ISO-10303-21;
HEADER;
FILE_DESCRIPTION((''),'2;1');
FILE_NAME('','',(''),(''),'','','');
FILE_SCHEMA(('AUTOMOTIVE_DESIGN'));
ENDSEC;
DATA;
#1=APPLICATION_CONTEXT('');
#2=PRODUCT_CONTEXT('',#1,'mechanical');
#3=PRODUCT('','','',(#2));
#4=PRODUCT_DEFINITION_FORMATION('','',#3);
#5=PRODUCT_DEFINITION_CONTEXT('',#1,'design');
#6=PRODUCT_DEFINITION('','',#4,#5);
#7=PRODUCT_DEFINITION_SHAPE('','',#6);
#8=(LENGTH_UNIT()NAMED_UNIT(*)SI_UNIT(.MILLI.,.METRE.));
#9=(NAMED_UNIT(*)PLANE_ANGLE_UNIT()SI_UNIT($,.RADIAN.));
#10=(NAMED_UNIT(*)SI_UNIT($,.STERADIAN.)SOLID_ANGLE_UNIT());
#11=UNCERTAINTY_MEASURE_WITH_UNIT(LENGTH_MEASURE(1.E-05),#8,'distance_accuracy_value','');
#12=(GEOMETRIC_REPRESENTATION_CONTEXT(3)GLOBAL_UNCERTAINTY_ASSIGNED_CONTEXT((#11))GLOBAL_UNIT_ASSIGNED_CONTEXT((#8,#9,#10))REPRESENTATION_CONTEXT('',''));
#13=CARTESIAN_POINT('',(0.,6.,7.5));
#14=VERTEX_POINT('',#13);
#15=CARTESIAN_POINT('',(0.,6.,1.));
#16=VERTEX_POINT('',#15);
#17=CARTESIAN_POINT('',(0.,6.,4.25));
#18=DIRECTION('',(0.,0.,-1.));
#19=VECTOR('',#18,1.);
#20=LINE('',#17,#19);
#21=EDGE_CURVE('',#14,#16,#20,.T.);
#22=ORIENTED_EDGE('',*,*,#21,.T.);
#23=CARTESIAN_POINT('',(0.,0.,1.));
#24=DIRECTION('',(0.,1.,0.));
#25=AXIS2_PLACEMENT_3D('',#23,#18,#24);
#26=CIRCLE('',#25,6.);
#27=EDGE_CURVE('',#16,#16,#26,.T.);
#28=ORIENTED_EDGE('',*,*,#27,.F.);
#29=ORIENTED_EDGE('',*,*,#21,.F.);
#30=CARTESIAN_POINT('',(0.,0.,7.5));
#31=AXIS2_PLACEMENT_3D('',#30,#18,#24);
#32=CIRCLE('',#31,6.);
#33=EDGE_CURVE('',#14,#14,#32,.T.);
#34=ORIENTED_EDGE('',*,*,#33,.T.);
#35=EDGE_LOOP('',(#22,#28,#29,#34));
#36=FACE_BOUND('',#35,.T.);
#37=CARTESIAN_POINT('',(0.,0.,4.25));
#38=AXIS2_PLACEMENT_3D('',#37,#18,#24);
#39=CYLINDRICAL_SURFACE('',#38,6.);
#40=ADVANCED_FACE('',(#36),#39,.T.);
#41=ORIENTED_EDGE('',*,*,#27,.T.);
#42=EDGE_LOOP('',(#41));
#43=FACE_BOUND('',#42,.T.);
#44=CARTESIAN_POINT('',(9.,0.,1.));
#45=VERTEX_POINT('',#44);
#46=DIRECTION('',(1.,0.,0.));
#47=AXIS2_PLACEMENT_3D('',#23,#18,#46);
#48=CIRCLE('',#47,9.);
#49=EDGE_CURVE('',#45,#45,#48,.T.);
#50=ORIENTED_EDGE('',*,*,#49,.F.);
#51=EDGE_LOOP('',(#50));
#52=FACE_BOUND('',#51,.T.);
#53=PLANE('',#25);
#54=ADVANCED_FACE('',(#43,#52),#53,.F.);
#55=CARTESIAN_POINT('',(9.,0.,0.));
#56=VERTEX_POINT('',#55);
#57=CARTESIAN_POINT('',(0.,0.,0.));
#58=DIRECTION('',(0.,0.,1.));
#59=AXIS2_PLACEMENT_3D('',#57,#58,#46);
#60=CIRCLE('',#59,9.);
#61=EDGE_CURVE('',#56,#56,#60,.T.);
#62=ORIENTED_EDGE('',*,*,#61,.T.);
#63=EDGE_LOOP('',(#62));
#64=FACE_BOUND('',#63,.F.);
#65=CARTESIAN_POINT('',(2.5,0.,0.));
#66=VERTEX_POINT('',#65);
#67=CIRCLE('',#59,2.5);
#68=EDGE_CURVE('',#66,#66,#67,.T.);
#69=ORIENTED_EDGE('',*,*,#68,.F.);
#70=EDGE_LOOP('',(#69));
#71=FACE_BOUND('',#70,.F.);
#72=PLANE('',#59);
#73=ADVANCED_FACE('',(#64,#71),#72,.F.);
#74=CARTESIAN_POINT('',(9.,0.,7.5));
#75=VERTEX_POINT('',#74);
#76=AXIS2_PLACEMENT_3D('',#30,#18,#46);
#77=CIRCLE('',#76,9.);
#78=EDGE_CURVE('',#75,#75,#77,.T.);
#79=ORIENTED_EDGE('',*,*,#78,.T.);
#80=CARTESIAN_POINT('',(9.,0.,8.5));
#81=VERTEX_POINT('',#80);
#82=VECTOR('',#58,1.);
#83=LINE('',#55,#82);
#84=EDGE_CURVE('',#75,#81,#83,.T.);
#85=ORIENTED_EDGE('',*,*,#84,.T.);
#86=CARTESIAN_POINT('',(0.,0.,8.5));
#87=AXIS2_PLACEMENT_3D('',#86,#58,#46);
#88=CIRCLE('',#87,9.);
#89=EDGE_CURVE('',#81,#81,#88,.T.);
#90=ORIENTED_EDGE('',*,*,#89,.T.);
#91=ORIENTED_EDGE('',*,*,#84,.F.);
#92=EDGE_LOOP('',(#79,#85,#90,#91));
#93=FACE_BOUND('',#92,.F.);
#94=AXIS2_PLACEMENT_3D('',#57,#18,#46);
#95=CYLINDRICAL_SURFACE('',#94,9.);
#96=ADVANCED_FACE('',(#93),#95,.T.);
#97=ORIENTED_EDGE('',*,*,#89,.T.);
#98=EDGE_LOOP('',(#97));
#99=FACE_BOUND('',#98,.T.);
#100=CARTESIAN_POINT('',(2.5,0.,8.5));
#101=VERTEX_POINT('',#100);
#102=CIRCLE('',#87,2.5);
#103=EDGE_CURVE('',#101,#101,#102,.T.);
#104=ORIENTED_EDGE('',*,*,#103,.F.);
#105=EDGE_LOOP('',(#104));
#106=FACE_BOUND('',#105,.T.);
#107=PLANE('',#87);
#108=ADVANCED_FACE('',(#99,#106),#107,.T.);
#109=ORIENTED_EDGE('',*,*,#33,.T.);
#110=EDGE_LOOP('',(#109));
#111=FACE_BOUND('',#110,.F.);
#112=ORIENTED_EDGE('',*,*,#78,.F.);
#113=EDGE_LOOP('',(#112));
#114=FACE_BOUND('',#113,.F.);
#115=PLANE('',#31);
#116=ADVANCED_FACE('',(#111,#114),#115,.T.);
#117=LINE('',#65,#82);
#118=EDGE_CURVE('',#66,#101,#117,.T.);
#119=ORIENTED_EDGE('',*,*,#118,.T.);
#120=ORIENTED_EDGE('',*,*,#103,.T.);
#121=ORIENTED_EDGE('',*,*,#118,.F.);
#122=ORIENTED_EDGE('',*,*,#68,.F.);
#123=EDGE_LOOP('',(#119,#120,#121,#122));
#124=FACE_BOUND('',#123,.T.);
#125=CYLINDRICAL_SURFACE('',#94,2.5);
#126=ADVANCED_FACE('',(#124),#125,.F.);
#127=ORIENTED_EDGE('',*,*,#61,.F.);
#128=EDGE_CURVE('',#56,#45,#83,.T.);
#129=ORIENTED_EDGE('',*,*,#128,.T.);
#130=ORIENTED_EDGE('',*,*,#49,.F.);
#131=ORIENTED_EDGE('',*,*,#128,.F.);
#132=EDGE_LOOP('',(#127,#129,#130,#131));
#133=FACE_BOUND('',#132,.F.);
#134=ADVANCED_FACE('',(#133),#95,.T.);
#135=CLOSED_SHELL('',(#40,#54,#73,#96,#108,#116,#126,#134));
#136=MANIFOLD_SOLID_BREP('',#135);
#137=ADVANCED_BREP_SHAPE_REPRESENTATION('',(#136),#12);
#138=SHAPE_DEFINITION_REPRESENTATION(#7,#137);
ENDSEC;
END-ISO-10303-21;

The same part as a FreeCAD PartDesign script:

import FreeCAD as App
import Part
import Sketcher
Q = App.Units.Quantity


def add_polygon(sketch, points):
    """Adds a closed chain of lines whose ends are joined by coincident constraints."""
    first, n = sketch.GeometryCount, len(points)
    for a, b in zip(points, points[1:] + points[:1]):
        sketch.addGeometry(Part.LineSegment(App.Vector(*a, 0), App.Vector(*b, 0)), False)
    for i in range(n):
        sketch.addConstraint(Sketcher.Constraint("Coincident", first + i, 2, first + (i + 1) % n, 1))

doc = App.newDocument("Part")
params = doc.addObject("Spreadsheet::Sheet", "Params")
for row, (alias, value) in enumerate([
    ("sketch1_diameter", "18 mm"),
    ("sketch1_diameter2", "5 mm"),
    ("pad1_length", "8.5 mm"),
    ("sketch2_height", "6.5 mm"),
    ("groove_angle", "360 deg"),
], start=1):
    params.set(f"A{row}", alias)
    params.set(f"B{row}", "=" + value)
    params.setAlias(f"B{row}", alias)

body = doc.addObject("PartDesign::Body", "Body")

sketch1 = doc.addObject("Sketcher::SketchObject", "Sketch")
body.addObject(sketch1)
sketch1.AttachmentSupport = (doc.XY_Plane, [""])
sketch1.MapMode = "FlatFace"
sketch1.addGeometry([
    Part.Circle(App.Vector(0, 0, 0), App.Vector(0, 0, 1), 9),
    Part.Circle(App.Vector(0, 0, 0), App.Vector(0, 0, 1), 2.5),
], False)
sketch1.addConstraint([
    Sketcher.Constraint("Coincident", 0, 3, -1, 1),
    Sketcher.Constraint("Coincident", 1, 3, -1, 1),
    Sketcher.Constraint("Diameter", 0, Q("18 mm")),
    Sketcher.Constraint("Diameter", 1, Q("5 mm")),
])
sketch1.setExpression("Constraints[2]", "Params.sketch1_diameter")
sketch1.setExpression("Constraints[3]", "Params.sketch1_diameter2")
pad1 = doc.addObject("PartDesign::Pad", "Pad")
body.addObject(pad1)
pad1.Profile = sketch1
pad1.setExpression("Length", "Params.pad1_length")

sketch2 = doc.addObject("Sketcher::SketchObject", "Sketch001")
body.addObject(sketch2)
sketch2.AttachmentSupport = (doc.YZ_Plane, [""])
sketch2.MapMode = "FlatFace"
add_polygon(sketch2, [(9.8, 7.5), (6, 7.5), (6, 1), (9.8, 1)])
sketch2.addConstraint([
    Sketcher.Constraint("Horizontal", 0),
    Sketcher.Constraint("Vertical", 1),
    Sketcher.Constraint("Horizontal", 2),
    Sketcher.Constraint("Vertical", 3),
    Sketcher.Constraint("DistanceY", 1, 2, 1, 1, Q("6.5 mm")),
    Sketcher.Constraint("DistanceX", -1, 1, 0, 2, Q("6 mm")),
    Sketcher.Constraint("DistanceY", -1, 1, 1, 2, Q("1 mm")),
    Sketcher.Constraint("DistanceX", 0, 2, 0, 1, Q("3.782064 mm")),
])
sketch2.setExpression("Constraints[8]", "Params.sketch2_height")
groove = doc.addObject("PartDesign::Groove", "Groove")
body.addObject(groove)
groove.Profile = sketch2
groove.ReferenceAxis = (sketch2, ["V_Axis"])
groove.setExpression("Angle", "Params.groove_angle")

doc.recompute()
